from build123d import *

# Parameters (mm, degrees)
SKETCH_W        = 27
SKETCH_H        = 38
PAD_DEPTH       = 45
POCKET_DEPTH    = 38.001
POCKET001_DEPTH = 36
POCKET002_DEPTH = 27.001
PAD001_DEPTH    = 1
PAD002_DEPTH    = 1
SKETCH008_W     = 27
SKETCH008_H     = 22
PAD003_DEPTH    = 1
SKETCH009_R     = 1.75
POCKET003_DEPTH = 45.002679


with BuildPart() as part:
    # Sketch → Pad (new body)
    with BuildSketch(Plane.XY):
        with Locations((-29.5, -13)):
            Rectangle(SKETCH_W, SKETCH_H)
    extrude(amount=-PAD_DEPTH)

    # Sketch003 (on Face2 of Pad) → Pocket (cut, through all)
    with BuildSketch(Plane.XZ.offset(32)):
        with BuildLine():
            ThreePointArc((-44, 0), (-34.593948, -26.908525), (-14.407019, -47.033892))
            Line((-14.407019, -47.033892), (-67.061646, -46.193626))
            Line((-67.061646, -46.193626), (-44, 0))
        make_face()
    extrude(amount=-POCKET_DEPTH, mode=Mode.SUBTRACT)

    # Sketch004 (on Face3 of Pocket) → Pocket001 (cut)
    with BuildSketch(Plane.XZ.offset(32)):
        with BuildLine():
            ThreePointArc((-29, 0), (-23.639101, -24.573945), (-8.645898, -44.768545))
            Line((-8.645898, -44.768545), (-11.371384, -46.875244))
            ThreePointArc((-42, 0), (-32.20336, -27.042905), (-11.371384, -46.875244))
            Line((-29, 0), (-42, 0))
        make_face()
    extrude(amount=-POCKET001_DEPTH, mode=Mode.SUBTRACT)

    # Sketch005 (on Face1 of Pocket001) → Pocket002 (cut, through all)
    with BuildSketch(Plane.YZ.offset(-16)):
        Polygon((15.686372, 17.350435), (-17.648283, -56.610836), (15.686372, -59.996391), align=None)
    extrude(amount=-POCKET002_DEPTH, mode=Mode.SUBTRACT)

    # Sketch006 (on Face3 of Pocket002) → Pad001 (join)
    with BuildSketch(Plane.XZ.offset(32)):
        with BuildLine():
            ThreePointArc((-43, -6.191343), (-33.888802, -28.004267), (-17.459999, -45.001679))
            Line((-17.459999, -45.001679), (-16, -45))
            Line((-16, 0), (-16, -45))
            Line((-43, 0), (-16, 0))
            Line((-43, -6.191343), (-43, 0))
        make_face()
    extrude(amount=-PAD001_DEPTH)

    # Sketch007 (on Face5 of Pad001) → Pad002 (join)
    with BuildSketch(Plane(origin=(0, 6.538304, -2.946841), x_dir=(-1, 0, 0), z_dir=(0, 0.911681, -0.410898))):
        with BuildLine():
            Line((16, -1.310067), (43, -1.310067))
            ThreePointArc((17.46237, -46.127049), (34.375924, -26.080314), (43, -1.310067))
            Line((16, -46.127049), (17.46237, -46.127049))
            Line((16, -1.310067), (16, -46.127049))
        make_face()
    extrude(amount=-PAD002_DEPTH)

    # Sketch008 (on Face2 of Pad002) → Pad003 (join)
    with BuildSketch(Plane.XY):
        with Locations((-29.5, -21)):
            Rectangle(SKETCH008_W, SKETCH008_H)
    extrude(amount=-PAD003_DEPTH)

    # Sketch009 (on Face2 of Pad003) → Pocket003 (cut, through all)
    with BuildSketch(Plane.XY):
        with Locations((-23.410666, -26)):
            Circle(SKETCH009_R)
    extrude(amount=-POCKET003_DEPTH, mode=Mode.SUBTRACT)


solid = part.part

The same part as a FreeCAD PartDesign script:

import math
import FreeCAD as App
import Part
import Sketcher
Q = App.Units.Quantity

doc = App.newDocument("Part")
body = doc.addObject("PartDesign::Body", "Body")

sketch1 = body.newObject("Sketcher::SketchObject", "Sketch")
sketch1.AttachmentSupport = (doc.getObject("XY_Plane"), [""])
sketch1.MapMode = "FlatFace"
sketch1.addGeometry(Part.LineSegment(App.Vector(-43, 6, 0), App.Vector(-43, -32, 0)), False)
sketch1.addGeometry(Part.LineSegment(App.Vector(-43, -32, 0), App.Vector(-16, -32, 0)), False)
sketch1.addGeometry(Part.LineSegment(App.Vector(-16, -32, 0), App.Vector(-16, 6, 0)), False)
sketch1.addGeometry(Part.LineSegment(App.Vector(-16, 6, 0), App.Vector(-43, 6, 0)), False)
sketch1.addConstraint(Sketcher.Constraint("Coincident", 0, 2, 1, 1))
sketch1.addConstraint(Sketcher.Constraint("Coincident", 1, 2, 2, 1))
sketch1.addConstraint(Sketcher.Constraint("Coincident", 2, 2, 3, 1))
sketch1.addConstraint(Sketcher.Constraint("Coincident", 3, 2, 0, 1))
sketch1.addConstraint(Sketcher.Constraint("Vertical", 0))
sketch1.addConstraint(Sketcher.Constraint("Horizontal", 1))
sketch1.addConstraint(Sketcher.Constraint("Vertical", 2))
sketch1.addConstraint(Sketcher.Constraint("Horizontal", 3))
sketch1.addConstraint(Sketcher.Constraint("DistanceX", 1, 1, 1, 2, Q("27 mm")))
sketch1.addConstraint(Sketcher.Constraint("DistanceY", 0, 2, 0, 1, Q("38 mm")))
sketch1.addConstraint(Sketcher.Constraint("DistanceX", 0, 2, -1, 1, Q("43 mm")))
sketch1.addConstraint(Sketcher.Constraint("DistanceY", 0, 2, -1, 1, Q("32 mm")))
pad1 = body.newObject("PartDesign::Pad", "Pad")
pad1.Profile = sketch1
pad1.Length = 45
pad1.Reversed = True

sketch2 = body.newObject("Sketcher::SketchObject", "Sketch001")
sketch2.AttachmentSupport = (doc.getObject("XZ_Plane"), [""])
sketch2.MapMode = "FlatFace"
sketch2.AttachmentOffset = App.Placement(App.Vector(0, 0, 32), App.Rotation())
sketch2.addGeometry(Part.ArcOfCircle(Part.Circle(App.Vector(19.400134, 7.063698, 0), App.Vector(0, 0, 1), 63.79242), math.radians(-173.642635), math.radians(-122.002458)), False)
sketch2.addGeometry(Part.LineSegment(App.Vector(-44, 0, 0), App.Vector(-67.061646, -46.193626, 0)), False)
sketch2.addGeometry(Part.LineSegment(App.Vector(-67.061646, -46.193626, 0), App.Vector(-14.407019, -47.033892, 0)), False)
sketch2.addConstraint(Sketcher.Constraint("Coincident", 0, 1, 1, 1))
sketch2.addConstraint(Sketcher.Constraint("Coincident", 1, 2, 2, 1))
sketch2.addConstraint(Sketcher.Constraint("Coincident", 2, 2, 0, 2))
sketch2.addConstraint(Sketcher.Constraint("PointOnObject", 0, 1, -1))
sketch2.addConstraint(Sketcher.Constraint("DistanceX", 0, 1, -1, 1, Q("44 mm")))
sketch2.addConstraint(Sketcher.Constraint("Radius", 0, Q("63.79242 mm")))
sketch2.addConstraint(Sketcher.Constraint("Distance", 2, Q("52.661331 mm")))
sketch2.addConstraint(Sketcher.Constraint("DistanceX", 2, 2, -1, 1, Q("14.407019 mm")))
sketch2.addConstraint(Sketcher.Constraint("DistanceX", 1, 2, 0, 3, Q("86.46178 mm")))
sketch2.addConstraint(Sketcher.Constraint("DistanceY", 2, 2, 0, 3, Q("54.09759 mm")))
pocket1 = body.newObject("PartDesign::Pocket", "Pocket")
pocket1.Profile = sketch2
pocket1.Type = "ThroughAll"

sketch3 = body.newObject("Sketcher::SketchObject", "Sketch002")
sketch3.AttachmentSupport = (doc.getObject("XZ_Plane"), [""])
sketch3.MapMode = "FlatFace"
sketch3.AttachmentOffset = App.Placement(App.Vector(0, 0, 32), App.Rotation())
sketch3.addGeometry(Part.ArcOfCircle(Part.Circle(App.Vector(30.787231, 0.171088, 0), App.Vector(0, 0, 1), 59.787476), math.radians(-179.836042), math.radians(-131.265944)), False)
sketch3.addGeometry(Part.LineSegment(App.Vector(-29, 0, 0), App.Vector(-42, 0, 0)), False)
sketch3.addGeometry(Part.ArcOfCircle(Part.Circle(App.Vector(20.333944, 7.285341, 0), App.Vector(0, 0, 1), 62.75824), math.radians(-173.333744), math.radians(-120.344487)), False)
sketch3.addGeometry(Part.LineSegment(App.Vector(-11.371384, -46.875244, 0), App.Vector(-8.645898, -44.768545, 0)), False)
sketch3.addConstraint(Sketcher.Constraint("Coincident", 0, 1, 1, 1))
sketch3.addConstraint(Sketcher.Constraint("Coincident", 1, 2, 2, 1))
sketch3.addConstraint(Sketcher.Constraint("Coincident", 2, 2, 3, 1))
sketch3.addConstraint(Sketcher.Constraint("Coincident", 3, 2, 0, 2))
sketch3.addConstraint(Sketcher.Constraint("Horizontal", 1))
sketch3.addConstraint(Sketcher.Constraint("PointOnObject", 0, 1, -1))
sketch3.addConstraint(Sketcher.Constraint("DistanceX", 1, 2, 1, 1, Q("13 mm")))
sketch3.addConstraint(Sketcher.Constraint("DistanceX", 0, 1, -1, 1, Q("29 mm")))
sketch3.addConstraint(Sketcher.Constraint("Radius", 2, Q("62.75824 mm")))
sketch3.addConstraint(Sketcher.Constraint("Radius", 0, Q("59.787476 mm")))
sketch3.addConstraint(Sketcher.Constraint("DistanceX", 3, 2, -1, 1, Q("8.645898 mm")))
sketch3.addConstraint(Sketcher.Constraint("DistanceY", 2, 2, 3, 2, Q("2.106699 mm")))
sketch3.addConstraint(Sketcher.Constraint("DistanceY", -1, 1, 2, 3, Q("7.285341 mm")))
sketch3.addConstraint(Sketcher.Constraint("Distance", 3, Q("3.444772 mm")))
pocket2 = body.newObject("PartDesign::Pocket", "Pocket001")
pocket2.Profile = sketch3
pocket2.Length = 36

sketch4 = body.newObject("Sketcher::SketchObject", "Sketch003")
sketch4.AttachmentSupport = (doc.getObject("YZ_Plane"), [""])
sketch4.MapMode = "FlatFace"
sketch4.AttachmentOffset = App.Placement(App.Vector(0, 0, -16), App.Rotation())
sketch4.addGeometry(Part.LineSegment(App.Vector(15.686372, 17.350435, 0), App.Vector(-17.648283, -56.610836, 0)), False)
sketch4.addGeometry(Part.LineSegment(App.Vector(-17.648283, -56.610836, 0), App.Vector(15.686372, -59.996391, 0)), False)
sketch4.addGeometry(Part.LineSegment(App.Vector(15.686372, -59.996391, 0), App.Vector(15.686372, 17.350435, 0)), False)
sketch4.addConstraint(Sketcher.Constraint("Coincident", 0, 2, 1, 1))
sketch4.addConstraint(Sketcher.Constraint("Coincident", 1, 2, 2, 1))
sketch4.addConstraint(Sketcher.Constraint("Coincident", 2, 2, 0, 1))
sketch4.addConstraint(Sketcher.Constraint("Vertical", 2))
sketch4.addConstraint(Sketcher.Constraint("DistanceY", 2, 1, 2, 2, Q("77.346826 mm")))
sketch4.addConstraint(Sketcher.Constraint("DistanceY", 1, 2, -1, 1, Q("59.996391 mm")))
sketch4.addConstraint(Sketcher.Constraint("DistanceY", 0, 2, 2, 2, Q("73.961271 mm")))
sketch4.addConstraint(Sketcher.Constraint("Distance", 0, Q("81.126252 mm")))
sketch4.addConstraint(Sketcher.Constraint("DistanceX", 0, 2, -1, 1, Q("17.648283 mm")))
pocket3 = body.newObject("PartDesign::Pocket", "Pocket002")
pocket3.Profile = sketch4
pocket3.Type = "ThroughAll"

sketch5 = body.newObject("Sketcher::SketchObject", "Sketch004")
sketch5.AttachmentSupport = (doc.getObject("XZ_Plane"), [""])
sketch5.MapMode = "FlatFace"
sketch5.AttachmentOffset = App.Placement(App.Vector(0, 0, 32), App.Rotation())
sketch5.addGeometry(Part.ArcOfCircle(Part.Circle(App.Vector(19.400134, 7.063697, 0), App.Vector(0, 0, 1), 63.792419), math.radians(-168.007483), math.radians(-125.296915)), False)
sketch5.addGeometry(Part.LineSegment(App.Vector(-17.459999, -45.001679, 0), App.Vector(-16, -45, 0)), False)
sketch5.addGeometry(Part.LineSegment(App.Vector(-16, -45, 0), App.Vector(-16, 0, 0)), False)
sketch5.addGeometry(Part.LineSegment(App.Vector(-16, 0, 0), App.Vector(-43, 0, 0)), False)
sketch5.addGeometry(Part.LineSegment(App.Vector(-43, 0, 0), App.Vector(-43, -6.191343, 0)), False)
sketch5.addConstraint(Sketcher.Constraint("Coincident", 0, 2, 1, 1))
sketch5.addConstraint(Sketcher.Constraint("Coincident", 1, 2, 2, 1))
sketch5.addConstraint(Sketcher.Constraint("Coincident", 2, 2, 3, 1))
sketch5.addConstraint(Sketcher.Constraint("Coincident", 3, 2, 4, 1))
sketch5.addConstraint(Sketcher.Constraint("Coincident", 4, 2, 0, 1))
sketch5.addConstraint(Sketcher.Constraint("Vertical", 2))
sketch5.addConstraint(Sketcher.Constraint("Horizontal", 3))
sketch5.addConstraint(Sketcher.Constraint("Vertical", 4))
sketch5.addConstraint(Sketcher.Constraint("PointOnObject", 2, 2, -1))
sketch5.addConstraint(Sketcher.Constraint("DistanceX", 3, 2, 3, 1, Q("27 mm")))
sketch5.addConstraint(Sketcher.Constraint("DistanceY", 2, 1, 2, 2, Q("45 mm")))
sketch5.addConstraint(Sketcher.Constraint("DistanceX", 1, 2, -1, 1, Q("16 mm")))
sketch5.addConstraint(Sketcher.Constraint("Distance", 1, Q("1.46 mm")))
sketch5.addConstraint(Sketcher.Constraint("Radius", 0, Q("63.792419 mm")))
sketch5.addConstraint(Sketcher.Constraint("DistanceY", 4, 2, 4, 1, Q("6.191343 mm")))
sketch5.addConstraint(Sketcher.Constraint("DistanceY", 0, 2, -1, 1, Q("45.001679 mm")))
pad2 = body.newObject("PartDesign::Pad", "Pad001")
pad2.Profile = sketch5
pad2.Length = 1
pad2.Reversed = True

sketch6 = body.newObject("Sketcher::SketchObject", "Sketch005")
sketch6.Placement = App.Placement(App.Vector(0, 6.538304, -2.946841), App.Rotation(App.Vector(-1, 0, 0), App.Vector(0, 0.410898121, 0.911681268), App.Vector(0, 0.911681268, -0.410898121), "ZXY"))
sketch6.addGeometry(Part.LineSegment(App.Vector(43, -1.310067, 0), App.Vector(16, -1.310067, 0)), False)
sketch6.addGeometry(Part.LineSegment(App.Vector(16, -1.310067, 0), App.Vector(16, -46.127049, 0)), False)
sketch6.addGeometry(Part.LineSegment(App.Vector(16, -46.127049, 0), App.Vector(17.46237, -46.127049, 0)), False)
sketch6.addGeometry(Part.ArcOfCircle(Part.Circle(App.Vector(-28.272095, 9.617803, 0), App.Vector(0, 0, 1), 72.104992), math.radians(-50.633694), math.radians(-8.717051)), False)
sketch6.addConstraint(Sketcher.Constraint("Coincident", 0, 2, 1, 1))
sketch6.addConstraint(Sketcher.Constraint("Coincident", 1, 2, 2, 1))
sketch6.addConstraint(Sketcher.Constraint("Coincident", 2, 2, 3, 1))
sketch6.addConstraint(Sketcher.Constraint("Coincident", 3, 2, 0, 1))
sketch6.addConstraint(Sketcher.Constraint("Horizontal", 0))
sketch6.addConstraint(Sketcher.Constraint("Vertical", 1))
sketch6.addConstraint(Sketcher.Constraint("Horizontal", 2))
sketch6.addConstraint(Sketcher.Constraint("DistanceX", 0, 2, 0, 1, Q("27 mm")))
sketch6.addConstraint(Sketcher.Constraint("DistanceX", -1, 1, 0, 2, Q("16 mm")))
sketch6.addConstraint(Sketcher.Constraint("Radius", 3, Q("72.104992 mm")))
sketch6.addConstraint(Sketcher.Constraint("DistanceX", 2, 1, 2, 2, Q("1.46237 mm")))
sketch6.addConstraint(Sketcher.Constraint("DistanceY", 1, 2, 1, 1, Q("44.816982 mm")))
sketch6.addConstraint(Sketcher.Constraint("DistanceY", 1, 2, -1, 1, Q("46.127049 mm")))
pad3 = body.newObject("PartDesign::Pad", "Pad002")
pad3.Profile = sketch6
pad3.Length = 1
pad3.Reversed = True

sketch7 = body.newObject("Sketcher::SketchObject", "Sketch006")
sketch7.AttachmentSupport = (doc.getObject("XY_Plane"), [""])
sketch7.MapMode = "FlatFace"
sketch7.addGeometry(Part.LineSegment(App.Vector(-43, -10, 0), App.Vector(-43, -32, 0)), False)
sketch7.addGeometry(Part.LineSegment(App.Vector(-43, -32, 0), App.Vector(-16, -32, 0)), False)
sketch7.addGeometry(Part.LineSegment(App.Vector(-16, -32, 0), App.Vector(-16, -10, 0)), False)
sketch7.addGeometry(Part.LineSegment(App.Vector(-16, -10, 0), App.Vector(-43, -10, 0)), False)
sketch7.addConstraint(Sketcher.Constraint("Coincident", 0, 2, 1, 1))
sketch7.addConstraint(Sketcher.Constraint("Coincident", 1, 2, 2, 1))
sketch7.addConstraint(Sketcher.Constraint("Coincident", 2, 2, 3, 1))
sketch7.addConstraint(Sketcher.Constraint("Coincident", 3, 2, 0, 1))
sketch7.addConstraint(Sketcher.Constraint("Vertical", 0))
sketch7.addConstraint(Sketcher.Constraint("Horizontal", 1))
sketch7.addConstraint(Sketcher.Constraint("Vertical", 2))
sketch7.addConstraint(Sketcher.Constraint("Horizontal", 3))
sketch7.addConstraint(Sketcher.Constraint("DistanceX", 1, 1, 1, 2, Q("27 mm")))
sketch7.addConstraint(Sketcher.Constraint("DistanceY", 0, 2, 0, 1, Q("22 mm")))
sketch7.addConstraint(Sketcher.Constraint("DistanceX", 0, 2, -1, 1, Q("43 mm")))
sketch7.addConstraint(Sketcher.Constraint("DistanceY", 0, 2, -1, 1, Q("32 mm")))
pad4 = body.newObject("PartDesign::Pad", "Pad003")
pad4.Profile = sketch7
pad4.Length = 1
pad4.Reversed = True

sketch8 = body.newObject("Sketcher::SketchObject", "Sketch007")
sketch8.AttachmentSupport = (doc.getObject("XY_Plane"), [""])
sketch8.MapMode = "FlatFace"
sketch8.addGeometry(Part.Circle(App.Vector(-23.410666, -26, 0), App.Vector(0, 0, 1), 1.75), False)
sketch8.addConstraint(Sketcher.Constraint("Diameter", 0, Q("3.5 mm")))
sketch8.addConstraint(Sketcher.Constraint("DistanceY", 0, 3, -1, 1, Q("26 mm")))
sketch8.addConstraint(Sketcher.Constraint("DistanceX", 0, 3, -1, 1, Q("23.410666 mm")))
pocket4 = body.newObject("PartDesign::Pocket", "Pocket003")
pocket4.Profile = sketch8
pocket4.Type = "ThroughAll"

doc.recompute()
